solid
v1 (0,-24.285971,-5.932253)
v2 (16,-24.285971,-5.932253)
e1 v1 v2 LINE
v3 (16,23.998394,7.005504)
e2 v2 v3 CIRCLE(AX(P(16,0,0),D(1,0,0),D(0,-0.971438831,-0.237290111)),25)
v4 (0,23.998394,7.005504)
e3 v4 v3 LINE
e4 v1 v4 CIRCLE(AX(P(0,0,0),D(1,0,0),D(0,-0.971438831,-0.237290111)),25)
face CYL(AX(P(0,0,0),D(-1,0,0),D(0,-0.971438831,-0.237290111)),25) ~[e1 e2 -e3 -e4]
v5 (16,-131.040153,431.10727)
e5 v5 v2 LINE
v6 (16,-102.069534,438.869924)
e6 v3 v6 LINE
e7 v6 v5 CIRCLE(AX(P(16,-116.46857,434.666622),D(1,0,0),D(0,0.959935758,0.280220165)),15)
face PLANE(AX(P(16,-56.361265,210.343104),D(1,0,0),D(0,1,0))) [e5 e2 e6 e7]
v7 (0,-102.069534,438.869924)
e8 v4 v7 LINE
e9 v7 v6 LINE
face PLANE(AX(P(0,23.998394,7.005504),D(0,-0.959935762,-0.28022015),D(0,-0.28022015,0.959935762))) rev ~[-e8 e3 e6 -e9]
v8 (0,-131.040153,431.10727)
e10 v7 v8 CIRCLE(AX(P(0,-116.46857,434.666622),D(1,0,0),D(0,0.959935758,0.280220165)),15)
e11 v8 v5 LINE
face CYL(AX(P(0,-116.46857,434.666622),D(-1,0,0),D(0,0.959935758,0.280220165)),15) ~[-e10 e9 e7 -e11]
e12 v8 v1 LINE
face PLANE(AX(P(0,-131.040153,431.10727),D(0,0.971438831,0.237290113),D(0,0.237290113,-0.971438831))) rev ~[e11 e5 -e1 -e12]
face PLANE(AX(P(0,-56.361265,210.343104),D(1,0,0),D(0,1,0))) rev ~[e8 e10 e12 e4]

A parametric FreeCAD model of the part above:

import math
import FreeCAD as App
import Part
import Sketcher

doc = App.newDocument("Part")
body = doc.addObject("PartDesign::Body", "Body")

# Sketch on YZ plane
sketch1 = body.newObject("Sketcher::SketchObject", "Sketch")
sketch1.AttachmentSupport = (doc.getObject("YZ_Plane"), [""])
sketch1.MapMode = "FlatFace"
sketch1.addGeometry([
    Part.LineSegment(App.Vector(24, 7, 0), App.Vector(-102, 439, 0)),
    Part.ArcOfCircle(Part.Circle(App.Vector(-116, 435, 0), App.Vector(0, 0, 1), 15), math.radians(16), math.radians(194)),
    Part.LineSegment(App.Vector(-131, 431, 0), App.Vector(-24, -6, 0)),
    Part.ArcOfCircle(Part.Circle(App.Vector(0, 0, 0), App.Vector(0, 0, 1), 25), math.radians(-166), math.radians(16)),
], False)
sketch1.addConstraint([
    Sketcher.Constraint("Tangent", 0, 2, 1, 1),
    Sketcher.Constraint("Tangent", 1, 2, 2, 1),
    Sketcher.Constraint("Tangent", 2, 2, 3, 1),
    Sketcher.Constraint("Tangent", 3, 2, 0, 1),
    Sketcher.Constraint("Coincident", 3, 3, -1, 1),
    Sketcher.Constraint("Radius", 1, 15.0),
    Sketcher.Constraint("Radius", 3, 25.0),
    Sketcher.Constraint("DistanceX", 1, 3, 2, 2, 92.182599),
    Sketcher.Constraint("DistanceY", -1, 1, 1, 3, 434.666622),
])
pad1 = body.newObject("PartDesign::Pad", "Pad")
pad1.Profile = sketch1
pad1.Length = 16

doc.recompute()
